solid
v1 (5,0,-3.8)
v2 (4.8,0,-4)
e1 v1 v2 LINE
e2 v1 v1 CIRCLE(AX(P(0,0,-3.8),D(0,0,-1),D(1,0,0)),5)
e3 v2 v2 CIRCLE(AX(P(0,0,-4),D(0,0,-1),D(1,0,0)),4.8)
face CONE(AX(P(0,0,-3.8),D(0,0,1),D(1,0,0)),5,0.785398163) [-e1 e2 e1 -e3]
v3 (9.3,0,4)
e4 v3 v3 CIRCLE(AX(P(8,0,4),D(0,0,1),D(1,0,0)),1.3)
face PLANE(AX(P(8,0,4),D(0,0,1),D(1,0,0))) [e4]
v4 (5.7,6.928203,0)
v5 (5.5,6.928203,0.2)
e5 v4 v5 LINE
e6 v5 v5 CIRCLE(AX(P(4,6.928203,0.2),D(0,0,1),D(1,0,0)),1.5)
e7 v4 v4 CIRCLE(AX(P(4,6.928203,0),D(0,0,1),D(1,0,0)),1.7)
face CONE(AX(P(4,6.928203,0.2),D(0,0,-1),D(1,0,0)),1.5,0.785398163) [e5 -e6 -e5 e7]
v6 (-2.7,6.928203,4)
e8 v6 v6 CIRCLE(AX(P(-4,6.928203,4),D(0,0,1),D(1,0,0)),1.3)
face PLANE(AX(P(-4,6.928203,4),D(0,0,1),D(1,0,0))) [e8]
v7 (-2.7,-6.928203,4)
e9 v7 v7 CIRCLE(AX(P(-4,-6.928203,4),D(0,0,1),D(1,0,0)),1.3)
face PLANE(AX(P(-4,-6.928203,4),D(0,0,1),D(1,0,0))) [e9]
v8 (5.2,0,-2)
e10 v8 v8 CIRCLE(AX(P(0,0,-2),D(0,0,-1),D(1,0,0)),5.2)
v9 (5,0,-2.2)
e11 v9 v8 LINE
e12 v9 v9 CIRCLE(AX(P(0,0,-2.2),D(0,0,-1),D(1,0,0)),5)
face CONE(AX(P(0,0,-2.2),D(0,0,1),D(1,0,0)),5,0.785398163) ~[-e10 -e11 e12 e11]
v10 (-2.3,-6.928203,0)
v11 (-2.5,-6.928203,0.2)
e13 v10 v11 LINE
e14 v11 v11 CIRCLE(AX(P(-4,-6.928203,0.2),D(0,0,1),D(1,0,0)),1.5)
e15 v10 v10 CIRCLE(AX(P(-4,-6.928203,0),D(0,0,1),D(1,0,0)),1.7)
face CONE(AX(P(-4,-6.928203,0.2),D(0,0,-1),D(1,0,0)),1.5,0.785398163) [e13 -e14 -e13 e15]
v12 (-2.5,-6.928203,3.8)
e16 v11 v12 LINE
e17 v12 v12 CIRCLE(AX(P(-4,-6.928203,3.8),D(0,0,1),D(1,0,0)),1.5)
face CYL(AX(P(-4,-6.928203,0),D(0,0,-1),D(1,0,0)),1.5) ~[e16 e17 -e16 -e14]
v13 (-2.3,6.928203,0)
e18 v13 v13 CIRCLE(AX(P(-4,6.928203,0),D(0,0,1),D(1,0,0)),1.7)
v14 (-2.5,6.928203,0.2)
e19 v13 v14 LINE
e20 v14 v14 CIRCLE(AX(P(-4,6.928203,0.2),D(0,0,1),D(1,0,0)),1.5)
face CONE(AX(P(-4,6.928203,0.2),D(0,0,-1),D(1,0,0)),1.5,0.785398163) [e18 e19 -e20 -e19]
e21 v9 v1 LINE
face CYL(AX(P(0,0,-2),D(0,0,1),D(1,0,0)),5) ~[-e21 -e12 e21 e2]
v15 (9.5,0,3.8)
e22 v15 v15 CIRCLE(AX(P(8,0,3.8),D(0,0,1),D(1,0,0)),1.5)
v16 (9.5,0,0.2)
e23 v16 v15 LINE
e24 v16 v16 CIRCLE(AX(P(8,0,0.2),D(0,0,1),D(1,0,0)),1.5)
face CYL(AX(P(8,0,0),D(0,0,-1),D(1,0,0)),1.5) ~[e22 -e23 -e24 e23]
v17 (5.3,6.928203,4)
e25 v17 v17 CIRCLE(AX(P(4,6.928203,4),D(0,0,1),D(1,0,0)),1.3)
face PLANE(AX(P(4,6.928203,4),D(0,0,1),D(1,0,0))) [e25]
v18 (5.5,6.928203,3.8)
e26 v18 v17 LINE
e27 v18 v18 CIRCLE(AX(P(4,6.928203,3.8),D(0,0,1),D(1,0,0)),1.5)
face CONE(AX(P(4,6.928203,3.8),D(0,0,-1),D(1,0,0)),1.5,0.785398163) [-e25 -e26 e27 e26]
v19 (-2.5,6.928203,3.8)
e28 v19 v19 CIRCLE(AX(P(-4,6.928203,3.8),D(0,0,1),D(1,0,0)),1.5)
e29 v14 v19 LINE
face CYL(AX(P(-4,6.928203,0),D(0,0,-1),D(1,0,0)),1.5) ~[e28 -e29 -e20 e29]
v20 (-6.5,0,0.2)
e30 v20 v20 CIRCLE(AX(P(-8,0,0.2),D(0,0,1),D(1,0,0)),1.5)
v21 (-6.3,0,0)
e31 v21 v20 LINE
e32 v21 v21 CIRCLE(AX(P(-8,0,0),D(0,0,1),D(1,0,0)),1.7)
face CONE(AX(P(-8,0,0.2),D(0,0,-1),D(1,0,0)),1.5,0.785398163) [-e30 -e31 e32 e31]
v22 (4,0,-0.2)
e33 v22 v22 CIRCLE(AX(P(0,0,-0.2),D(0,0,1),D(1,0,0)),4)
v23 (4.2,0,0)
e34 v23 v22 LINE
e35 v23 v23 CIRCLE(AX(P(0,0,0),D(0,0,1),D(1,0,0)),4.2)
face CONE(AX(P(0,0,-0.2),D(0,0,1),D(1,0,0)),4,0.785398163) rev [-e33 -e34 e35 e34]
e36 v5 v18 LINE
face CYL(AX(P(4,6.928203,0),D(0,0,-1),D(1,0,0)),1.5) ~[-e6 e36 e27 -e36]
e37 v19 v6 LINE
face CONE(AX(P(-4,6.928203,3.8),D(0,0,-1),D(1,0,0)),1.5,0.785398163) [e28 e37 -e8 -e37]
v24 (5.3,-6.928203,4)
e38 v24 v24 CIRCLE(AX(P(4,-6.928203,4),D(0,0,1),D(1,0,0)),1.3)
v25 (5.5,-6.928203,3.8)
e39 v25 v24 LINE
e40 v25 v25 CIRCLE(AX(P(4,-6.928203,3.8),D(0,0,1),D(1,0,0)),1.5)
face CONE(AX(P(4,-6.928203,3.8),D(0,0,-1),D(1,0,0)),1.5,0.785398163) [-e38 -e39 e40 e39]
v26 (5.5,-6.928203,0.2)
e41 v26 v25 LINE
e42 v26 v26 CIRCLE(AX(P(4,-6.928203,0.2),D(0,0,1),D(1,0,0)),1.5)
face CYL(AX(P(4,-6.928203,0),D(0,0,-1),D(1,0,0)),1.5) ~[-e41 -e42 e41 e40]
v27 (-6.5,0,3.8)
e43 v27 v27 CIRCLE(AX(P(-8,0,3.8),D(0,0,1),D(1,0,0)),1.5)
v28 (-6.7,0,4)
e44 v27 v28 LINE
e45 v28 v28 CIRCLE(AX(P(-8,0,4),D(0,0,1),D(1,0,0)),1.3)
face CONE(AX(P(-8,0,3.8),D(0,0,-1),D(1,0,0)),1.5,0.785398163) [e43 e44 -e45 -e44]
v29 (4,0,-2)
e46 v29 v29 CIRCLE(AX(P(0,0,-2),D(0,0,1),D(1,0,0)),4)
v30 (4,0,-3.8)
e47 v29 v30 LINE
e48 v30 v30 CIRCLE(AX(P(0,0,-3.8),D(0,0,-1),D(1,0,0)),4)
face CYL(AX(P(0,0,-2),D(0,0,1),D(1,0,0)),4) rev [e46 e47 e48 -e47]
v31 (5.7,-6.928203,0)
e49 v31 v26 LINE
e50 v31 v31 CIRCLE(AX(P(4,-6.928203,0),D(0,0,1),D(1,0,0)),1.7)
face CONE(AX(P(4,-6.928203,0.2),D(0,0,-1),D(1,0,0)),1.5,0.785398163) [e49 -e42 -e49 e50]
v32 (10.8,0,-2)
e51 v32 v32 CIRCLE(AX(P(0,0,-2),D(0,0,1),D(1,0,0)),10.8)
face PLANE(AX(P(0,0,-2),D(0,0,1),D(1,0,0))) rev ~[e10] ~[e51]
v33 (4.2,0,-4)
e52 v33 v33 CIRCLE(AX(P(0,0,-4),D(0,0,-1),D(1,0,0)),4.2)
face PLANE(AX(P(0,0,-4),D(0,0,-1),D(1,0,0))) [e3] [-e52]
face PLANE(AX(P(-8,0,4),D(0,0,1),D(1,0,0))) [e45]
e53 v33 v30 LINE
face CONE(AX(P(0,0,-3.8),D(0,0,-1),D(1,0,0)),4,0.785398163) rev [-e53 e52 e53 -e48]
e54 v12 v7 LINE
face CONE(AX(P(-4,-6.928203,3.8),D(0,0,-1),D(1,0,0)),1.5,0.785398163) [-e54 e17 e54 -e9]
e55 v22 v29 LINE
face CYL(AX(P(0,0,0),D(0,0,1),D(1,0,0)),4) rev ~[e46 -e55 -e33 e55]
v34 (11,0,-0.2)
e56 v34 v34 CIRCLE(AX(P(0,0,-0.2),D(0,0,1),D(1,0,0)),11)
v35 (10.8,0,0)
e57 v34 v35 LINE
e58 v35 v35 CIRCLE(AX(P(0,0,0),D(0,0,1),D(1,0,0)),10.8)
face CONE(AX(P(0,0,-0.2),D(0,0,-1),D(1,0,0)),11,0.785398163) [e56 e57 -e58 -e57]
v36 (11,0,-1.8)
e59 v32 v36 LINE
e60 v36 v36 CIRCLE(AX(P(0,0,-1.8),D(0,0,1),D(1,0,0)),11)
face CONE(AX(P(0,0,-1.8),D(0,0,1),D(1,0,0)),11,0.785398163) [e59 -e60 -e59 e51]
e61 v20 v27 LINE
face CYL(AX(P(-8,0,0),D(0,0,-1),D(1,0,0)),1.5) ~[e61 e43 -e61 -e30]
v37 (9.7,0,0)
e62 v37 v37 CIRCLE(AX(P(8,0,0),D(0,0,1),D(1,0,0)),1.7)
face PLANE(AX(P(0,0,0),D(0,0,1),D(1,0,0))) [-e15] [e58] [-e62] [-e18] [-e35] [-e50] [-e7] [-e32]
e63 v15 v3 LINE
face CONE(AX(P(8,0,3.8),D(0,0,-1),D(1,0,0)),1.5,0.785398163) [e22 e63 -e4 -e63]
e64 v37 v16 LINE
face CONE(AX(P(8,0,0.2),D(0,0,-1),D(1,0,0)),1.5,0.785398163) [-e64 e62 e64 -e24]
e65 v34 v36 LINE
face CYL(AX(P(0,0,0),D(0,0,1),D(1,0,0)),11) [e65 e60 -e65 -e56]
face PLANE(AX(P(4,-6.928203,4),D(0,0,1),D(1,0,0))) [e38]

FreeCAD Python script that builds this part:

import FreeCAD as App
import Part
import Sketcher
from FreeCAD import Vector


def edges_at(feature, points):
    """Names of the edges that pass closest to the given points."""
    edges = feature.Shape.Edges
    near = lambda p: min(range(len(edges)), key=lambda i: edges[i].distToShape(Part.Vertex(*p))[0])
    return sorted({f"Edge{near(p) + 1}" for p in points})

doc = App.newDocument("Part")
params = doc.addObject("Spreadsheet::Sheet", "Params")
for row, (alias, value) in enumerate([
    ("sketch1_diameter", "3 mm"),
    ("pad1_length", "4 mm"),
    ("sketch2_diameter", "3 mm"),
    ("pad2_length", "4 mm"),
    ("sketch3_diameter", "3 mm"),
    ("pad3_length", "4 mm"),
    ("sketch4_diameter", "3 mm"),
    ("pad4_length", "4 mm"),
    ("sketch5_diameter", "3 mm"),
    ("pad5_length", "4 mm"),
    ("sketch6_diameter", "3 mm"),
    ("pad6_length", "4 mm"),
    ("sketch7_diameter", "22 mm"),
    ("sketch7_diameter2", "8 mm"),
    ("pad7_length", "2 mm"),
    ("sketch8_diameter", "10 mm"),
    ("sketch8_diameter2", "8 mm"),
    ("pad8_length", "2 mm"),
    ("chamfer_size", "0.2 mm"),
], start=1):
    params.set(f"A{row}", alias)
    params.set(f"B{row}", "=" + value)
    params.setAlias(f"B{row}", alias)

body = doc.addObject("PartDesign::Body", "Body")

sketch1 = doc.addObject("Sketcher::SketchObject", "Sketch")
body.addObject(sketch1)
sketch1.AttachmentSupport = (doc.XY_Plane, [""])
sketch1.MapMode = "FlatFace"
sketch1.addGeometry(Part.Circle(Vector(-8, 0, 0), Vector(0, 0, 1), 1.5), False)
sketch1.addConstraint(Sketcher.Constraint("PointOnObject", 0, 3, -1))
sketch1.addConstraint(Sketcher.Constraint("Diameter", 0, 3.0))
sketch1.addConstraint(Sketcher.Constraint("DistanceX", 0, 3, -1, 1, 8.0))
sketch1.setExpression("Constraints[1]", "Params.sketch1_diameter")
pad1 = doc.addObject("PartDesign::Pad", "Pad")
body.addObject(pad1)
pad1.Profile = sketch1
pad1.setExpression("Length", "Params.pad1_length")
body2 = doc.addObject("PartDesign::Body", "Body001")

sketch2 = doc.addObject("Sketcher::SketchObject", "Sketch001")
body2.addObject(sketch2)
sketch2.AttachmentSupport = (doc.getObject("XY_Plane001"), [""])
sketch2.MapMode = "FlatFace"
sketch2.addGeometry(Part.Circle(Vector(-4, 6.9, 0), Vector(0, 0, 1), 1.5), False)
sketch2.addConstraint(Sketcher.Constraint("Diameter", 0, 3.0))
sketch2.addConstraint(Sketcher.Constraint("DistanceX", 0, 3, -1, 1, 4.0))
sketch2.addConstraint(Sketcher.Constraint("DistanceY", -1, 1, 0, 3, 6.928203))
sketch2.setExpression("Constraints[0]", "Params.sketch2_diameter")
pad2 = doc.addObject("PartDesign::Pad", "Pad001")
body2.addObject(pad2)
pad2.Profile = sketch2
pad2.setExpression("Length", "Params.pad2_length")
body3 = doc.addObject("PartDesign::Body", "Body002")

sketch3 = doc.addObject("Sketcher::SketchObject", "Sketch002")
body3.addObject(sketch3)
sketch3.AttachmentSupport = (doc.getObject("XY_Plane002"), [""])
sketch3.MapMode = "FlatFace"
sketch3.addGeometry(Part.Circle(Vector(4, 6.9, 0), Vector(0, 0, 1), 1.5), False)
sketch3.addConstraint(Sketcher.Constraint("Diameter", 0, 3.0))
sketch3.addConstraint(Sketcher.Constraint("DistanceX", -1, 1, 0, 3, 4.0))
sketch3.addConstraint(Sketcher.Constraint("DistanceY", -1, 1, 0, 3, 6.928203))
sketch3.setExpression("Constraints[0]", "Params.sketch3_diameter")
pad3 = doc.addObject("PartDesign::Pad", "Pad002")
body3.addObject(pad3)
pad3.Profile = sketch3
pad3.setExpression("Length", "Params.pad3_length")
body4 = doc.addObject("PartDesign::Body", "Body003")

sketch4 = doc.addObject("Sketcher::SketchObject", "Sketch003")
body4.addObject(sketch4)
sketch4.AttachmentSupport = (doc.getObject("XY_Plane003"), [""])
sketch4.MapMode = "FlatFace"
sketch4.addGeometry(Part.Circle(Vector(8, 0, 0), Vector(0, 0, 1), 1.5), False)
sketch4.addConstraint(Sketcher.Constraint("PointOnObject", 0, 3, -1))
sketch4.addConstraint(Sketcher.Constraint("Diameter", 0, 3.0))
sketch4.addConstraint(Sketcher.Constraint("DistanceX", -1, 1, 0, 3, 8.0))
sketch4.setExpression("Constraints[1]", "Params.sketch4_diameter")
pad4 = doc.addObject("PartDesign::Pad", "Pad003")
body4.addObject(pad4)
pad4.Profile = sketch4
pad4.setExpression("Length", "Params.pad4_length")
body5 = doc.addObject("PartDesign::Body", "Body004")

sketch5 = doc.addObject("Sketcher::SketchObject", "Sketch004")
body5.addObject(sketch5)
sketch5.AttachmentSupport = (doc.getObject("XY_Plane004"), [""])
sketch5.MapMode = "FlatFace"
sketch5.addGeometry(Part.Circle(Vector(4, -6.9, 0), Vector(0, 0, 1), 1.5), False)
sketch5.addConstraint(Sketcher.Constraint("Diameter", 0, 3.0))
sketch5.addConstraint(Sketcher.Constraint("DistanceX", -1, 1, 0, 3, 4.0))
sketch5.addConstraint(Sketcher.Constraint("DistanceY", 0, 3, -1, 1, 6.928203))
sketch5.setExpression("Constraints[0]", "Params.sketch5_diameter")
pad5 = doc.addObject("PartDesign::Pad", "Pad004")
body5.addObject(pad5)
pad5.Profile = sketch5
pad5.setExpression("Length", "Params.pad5_length")
body6 = doc.addObject("PartDesign::Body", "Body005")

sketch6 = doc.addObject("Sketcher::SketchObject", "Sketch005")
body6.addObject(sketch6)
sketch6.AttachmentSupport = (doc.getObject("XY_Plane005"), [""])
sketch6.MapMode = "FlatFace"
sketch6.addGeometry(Part.Circle(Vector(-4, -6.9, 0), Vector(0, 0, 1), 1.5), False)
sketch6.addConstraint(Sketcher.Constraint("Diameter", 0, 3.0))
sketch6.addConstraint(Sketcher.Constraint("DistanceX", 0, 3, -1, 1, 4.0))
sketch6.addConstraint(Sketcher.Constraint("DistanceY", 0, 3, -1, 1, 6.928203))
sketch6.setExpression("Constraints[0]", "Params.sketch6_diameter")
pad6 = doc.addObject("PartDesign::Pad", "Pad005")
body6.addObject(pad6)
pad6.Profile = sketch6
pad6.setExpression("Length", "Params.pad6_length")
body.AllowCompound = True
doc.recompute()

boolean = doc.addObject("PartDesign::Boolean", "Boolean")
body.addObject(boolean)
boolean.Type = "Fuse"
boolean.addObjects([body2])
doc.recompute()

boolean2 = doc.addObject("PartDesign::Boolean", "Boolean001")
body.addObject(boolean2)
boolean2.Type = "Fuse"
boolean2.addObjects([body3])
doc.recompute()

boolean3 = doc.addObject("PartDesign::Boolean", "Boolean002")
body.addObject(boolean3)
boolean3.Type = "Fuse"
boolean3.addObjects([body4])
doc.recompute()

boolean4 = doc.addObject("PartDesign::Boolean", "Boolean003")
body.addObject(boolean4)
boolean4.Type = "Fuse"
boolean4.addObjects([body5])
doc.recompute()

boolean5 = doc.addObject("PartDesign::Boolean", "Boolean004")
body.addObject(boolean5)
boolean5.Type = "Fuse"
boolean5.addObjects([body6])

sketch7 = doc.addObject("Sketcher::SketchObject", "Sketch006")
body.addObject(sketch7)
sketch7.AttachmentSupport = (doc.XY_Plane, [""])
sketch7.MapMode = "FlatFace"
sketch7.addGeometry(Part.Circle(Vector(0, 0, 0), Vector(0, 0, 1), 11), False)
sketch7.addGeometry(Part.Circle(Vector(0, 0, 0), Vector(0, 0, 1), 4), False)
sketch7.addConstraint(Sketcher.Constraint("Coincident", 0, 3, -1, 1))
sketch7.addConstraint(Sketcher.Constraint("Coincident", 1, 3, -1, 1))
sketch7.addConstraint(Sketcher.Constraint("Diameter", 0, 22.0))
sketch7.addConstraint(Sketcher.Constraint("Diameter", 1, 8.0))
sketch7.setExpression("Constraints[2]", "Params.sketch7_diameter")
sketch7.setExpression("Constraints[3]", "Params.sketch7_diameter2")
pad7 = doc.addObject("PartDesign::Pad", "Pad006")
body.addObject(pad7)
pad7.Profile = sketch7
pad7.setExpression("Length", "Params.pad7_length")
pad7.Reversed = True

sketch8 = doc.addObject("Sketcher::SketchObject", "Sketch007")
body.addObject(sketch8)
sketch8.AttachmentSupport = (doc.XY_Plane, [""])
sketch8.MapMode = "FlatFace"
sketch8.AttachmentOffset = App.Placement(Vector(0, 0, -2), App.Rotation())
sketch8.addGeometry(Part.Circle(Vector(0, 0, 0), Vector(0, 0, 1), 5), False)
sketch8.addGeometry(Part.Circle(Vector(0, 0, 0), Vector(0, 0, 1), 4), False)
sketch8.addConstraint(Sketcher.Constraint("Coincident", 0, 3, -1, 1))
sketch8.addConstraint(Sketcher.Constraint("Coincident", 1, 3, -1, 1))
sketch8.addConstraint(Sketcher.Constraint("Diameter", 0, 10.0))
sketch8.addConstraint(Sketcher.Constraint("Diameter", 1, 8.0))
sketch8.setExpression("Constraints[2]", "Params.sketch8_diameter")
sketch8.setExpression("Constraints[3]", "Params.sketch8_diameter2")
pad8 = doc.addObject("PartDesign::Pad", "Pad007")
body.addObject(pad8)
pad8.Profile = sketch8
pad8.setExpression("Length", "Params.pad8_length")
pad8.Reversed = True
doc.recompute()

chamfer = doc.addObject("PartDesign::Chamfer", "Chamfer")
body.addObject(chamfer)
chamfer.Base = (pad8, edges_at(pad8, [
    (-11, 0, 0),
    (-5.5, -6.928, 0),
    (-9.5, 0, 0),
    (2.5, -6.928, 0),
    (-4, 0, 0),
    (6.5, 0, 0),
    (-5.5, 6.928, 0),
    (2.5, 6.928, 0),
    (6.5, 0, 4),
    (2.5, -6.928, 4),
    (-5.5, -6.928, 4),
    (-9.5, 0, 4),
    (-5.5, 6.928, 4),
    (2.5, 6.928, 4),
    (-4, 0, -4),
    (-5, 0, -4),
    (-5, 0, -2),
    (-11, 0, -2),
]))
chamfer.setExpression("Size", "Params.chamfer_size")

doc.recompute()
